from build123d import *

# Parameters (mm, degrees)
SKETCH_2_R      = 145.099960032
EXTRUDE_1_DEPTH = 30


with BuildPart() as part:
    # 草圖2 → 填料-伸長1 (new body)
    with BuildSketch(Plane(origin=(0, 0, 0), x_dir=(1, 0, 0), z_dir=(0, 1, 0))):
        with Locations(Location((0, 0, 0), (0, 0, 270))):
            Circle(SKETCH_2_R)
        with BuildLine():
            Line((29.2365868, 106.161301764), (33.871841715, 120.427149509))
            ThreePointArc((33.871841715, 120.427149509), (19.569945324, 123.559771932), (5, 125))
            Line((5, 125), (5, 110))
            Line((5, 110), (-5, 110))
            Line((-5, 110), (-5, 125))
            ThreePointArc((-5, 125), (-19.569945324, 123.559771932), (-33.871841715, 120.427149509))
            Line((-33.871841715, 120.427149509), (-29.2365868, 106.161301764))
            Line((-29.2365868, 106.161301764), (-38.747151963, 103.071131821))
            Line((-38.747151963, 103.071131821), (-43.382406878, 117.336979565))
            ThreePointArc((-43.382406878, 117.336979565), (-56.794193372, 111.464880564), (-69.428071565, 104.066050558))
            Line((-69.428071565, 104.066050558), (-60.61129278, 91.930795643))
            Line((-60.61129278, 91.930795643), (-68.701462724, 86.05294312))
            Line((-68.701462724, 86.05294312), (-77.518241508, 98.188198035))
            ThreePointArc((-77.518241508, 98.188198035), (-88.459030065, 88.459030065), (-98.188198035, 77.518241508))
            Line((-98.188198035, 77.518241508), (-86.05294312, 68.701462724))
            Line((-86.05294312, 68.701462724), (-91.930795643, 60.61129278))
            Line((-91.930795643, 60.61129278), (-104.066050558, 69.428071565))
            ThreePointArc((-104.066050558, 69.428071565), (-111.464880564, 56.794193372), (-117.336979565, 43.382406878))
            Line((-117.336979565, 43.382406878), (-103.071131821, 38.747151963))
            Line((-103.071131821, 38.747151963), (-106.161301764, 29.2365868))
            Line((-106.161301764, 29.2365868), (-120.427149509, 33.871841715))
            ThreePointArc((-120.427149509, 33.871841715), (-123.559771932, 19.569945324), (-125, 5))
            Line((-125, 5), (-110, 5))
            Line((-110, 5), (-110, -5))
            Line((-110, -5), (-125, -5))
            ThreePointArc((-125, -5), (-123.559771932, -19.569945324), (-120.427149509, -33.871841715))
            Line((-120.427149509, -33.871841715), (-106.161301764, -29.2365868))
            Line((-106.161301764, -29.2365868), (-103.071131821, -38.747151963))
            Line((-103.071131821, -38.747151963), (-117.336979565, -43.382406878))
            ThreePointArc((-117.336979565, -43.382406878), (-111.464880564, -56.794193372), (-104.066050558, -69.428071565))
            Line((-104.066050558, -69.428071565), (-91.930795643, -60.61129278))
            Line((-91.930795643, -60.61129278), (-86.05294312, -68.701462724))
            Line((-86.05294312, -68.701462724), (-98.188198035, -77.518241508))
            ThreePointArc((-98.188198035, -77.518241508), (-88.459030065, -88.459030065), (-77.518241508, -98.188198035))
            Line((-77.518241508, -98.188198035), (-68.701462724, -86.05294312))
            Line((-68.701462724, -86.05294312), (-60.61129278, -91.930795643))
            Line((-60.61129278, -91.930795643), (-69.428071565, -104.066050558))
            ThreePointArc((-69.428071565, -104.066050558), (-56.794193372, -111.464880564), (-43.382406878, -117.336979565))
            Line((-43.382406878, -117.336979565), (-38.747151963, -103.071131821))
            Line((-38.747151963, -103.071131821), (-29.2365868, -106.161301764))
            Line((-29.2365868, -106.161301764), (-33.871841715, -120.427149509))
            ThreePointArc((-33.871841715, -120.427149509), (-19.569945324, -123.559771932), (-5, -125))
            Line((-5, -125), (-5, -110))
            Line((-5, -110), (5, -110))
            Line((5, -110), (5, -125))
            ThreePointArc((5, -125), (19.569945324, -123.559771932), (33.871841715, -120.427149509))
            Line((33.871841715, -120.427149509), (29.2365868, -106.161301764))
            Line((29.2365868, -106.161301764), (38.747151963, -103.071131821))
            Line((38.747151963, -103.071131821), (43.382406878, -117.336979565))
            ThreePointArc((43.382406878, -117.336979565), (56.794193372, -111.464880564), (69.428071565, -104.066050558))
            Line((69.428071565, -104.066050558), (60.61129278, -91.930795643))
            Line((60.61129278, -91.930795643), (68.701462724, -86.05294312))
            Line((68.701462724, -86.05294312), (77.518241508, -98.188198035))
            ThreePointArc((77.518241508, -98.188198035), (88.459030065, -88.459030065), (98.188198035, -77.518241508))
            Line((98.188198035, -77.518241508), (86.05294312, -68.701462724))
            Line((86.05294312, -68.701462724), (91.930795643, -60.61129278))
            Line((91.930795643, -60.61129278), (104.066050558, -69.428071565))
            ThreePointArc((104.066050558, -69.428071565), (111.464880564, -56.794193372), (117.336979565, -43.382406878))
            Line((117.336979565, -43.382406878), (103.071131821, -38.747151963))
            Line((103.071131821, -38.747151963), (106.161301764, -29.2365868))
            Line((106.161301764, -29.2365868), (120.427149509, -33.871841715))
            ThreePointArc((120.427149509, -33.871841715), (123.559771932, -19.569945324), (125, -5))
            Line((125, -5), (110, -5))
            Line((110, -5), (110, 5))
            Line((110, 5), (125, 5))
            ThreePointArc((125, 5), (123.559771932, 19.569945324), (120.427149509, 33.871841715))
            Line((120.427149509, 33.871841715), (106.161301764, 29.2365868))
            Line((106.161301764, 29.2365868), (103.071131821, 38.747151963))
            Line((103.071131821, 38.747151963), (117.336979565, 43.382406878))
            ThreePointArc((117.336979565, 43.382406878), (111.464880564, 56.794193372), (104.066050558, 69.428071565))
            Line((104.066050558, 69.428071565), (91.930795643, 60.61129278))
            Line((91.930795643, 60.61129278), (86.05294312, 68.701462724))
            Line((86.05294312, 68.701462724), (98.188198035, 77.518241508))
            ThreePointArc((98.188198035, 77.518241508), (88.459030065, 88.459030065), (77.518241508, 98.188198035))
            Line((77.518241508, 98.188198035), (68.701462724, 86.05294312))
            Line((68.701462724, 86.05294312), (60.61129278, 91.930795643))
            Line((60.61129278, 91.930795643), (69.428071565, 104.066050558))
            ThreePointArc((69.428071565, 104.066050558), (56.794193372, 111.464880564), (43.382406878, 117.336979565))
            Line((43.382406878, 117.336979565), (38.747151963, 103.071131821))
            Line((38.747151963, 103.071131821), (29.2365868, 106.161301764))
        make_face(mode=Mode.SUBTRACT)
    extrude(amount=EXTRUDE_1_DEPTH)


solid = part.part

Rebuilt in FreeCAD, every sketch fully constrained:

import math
import FreeCAD as App
import Part
import Sketcher
from FreeCAD import Vector
Q = App.Units.Quantity

doc = App.newDocument("Part")
params = doc.addObject("Spreadsheet::Sheet", "Params")
for row, (alias, value) in enumerate([
    ("sketch1_width", "15 mm"),
    ("sketch1_width2", "10 mm"),
    ("sketch1_length", "15 mm"),
    ("sketch1_length2", "10 mm"),
    ("pad1_length", "30 mm"),
], start=1):
    params.set(f"A{row}", alias)
    params.set(f"B{row}", "=" + value)
    params.setAlias(f"B{row}", alias)

body = doc.addObject("PartDesign::Body", "Body")

sketch1 = body.newObject("Sketcher::SketchObject", "Sketch")
sketch1.AttachmentSupport = (doc.getObject("XZ_Plane"), [""])
sketch1.MapMode = "FlatFace"
sketch1.addGeometry([
    Part.Circle(Vector(0, 0, 0), Vector(0, 0, 1), 145),
    Part.LineSegment(Vector(34, -120, 0), Vector(29, -106, 0)),
    Part.LineSegment(Vector(29, -106, 0), Vector(39, -103, 0)),
    Part.LineSegment(Vector(39, -103, 0), Vector(43, -117, 0)),
    Part.ArcOfCircle(Part.Circle(Vector(0, 0, 0), Vector(0, 0, 1), 125), math.radians(-69.71), math.radians(-56.29)),
    Part.LineSegment(Vector(69, -104, 0), Vector(61, -92, 0)),
    Part.LineSegment(Vector(61, -92, 0), Vector(69, -86, 0)),
    Part.LineSegment(Vector(69, -86, 0), Vector(78, -98, 0)),
    Part.ArcOfCircle(Part.Circle(Vector(0, 0, 0), Vector(0, 0, 1), 125), math.radians(-51.71), math.radians(-38.29)),
    Part.LineSegment(Vector(98, -78, 0), Vector(86, -69, 0)),
    Part.LineSegment(Vector(86, -69, 0), Vector(92, -61, 0)),
    Part.LineSegment(Vector(92, -61, 0), Vector(104, -69, 0)),
    Part.ArcOfCircle(Part.Circle(Vector(0, 0, 0), Vector(0, 0, 1), 125), math.radians(-33.71), math.radians(-20.29)),
    Part.LineSegment(Vector(117, -43, 0), Vector(103, -39, 0)),
    Part.LineSegment(Vector(103, -39, 0), Vector(106, -29, 0)),
    Part.LineSegment(Vector(106, -29, 0), Vector(120, -34, 0)),
    Part.ArcOfCircle(Part.Circle(Vector(0, 0, 0), Vector(0, 0, 1), 125), math.radians(-15.71), math.radians(-2.29)),
    Part.LineSegment(Vector(125, -5, 0), Vector(110, -5, 0)),
    Part.LineSegment(Vector(110, -5, 0), Vector(110, 5, 0)),
    Part.LineSegment(Vector(110, 5, 0), Vector(125, 5, 0)),
    Part.ArcOfCircle(Part.Circle(Vector(0, 0, 0), Vector(0, 0, 1), 125), math.radians(2.29), math.radians(15.71)),
    Part.LineSegment(Vector(120, 34, 0), Vector(106, 29, 0)),
    Part.LineSegment(Vector(106, 29, 0), Vector(103, 39, 0)),
    Part.LineSegment(Vector(103, 39, 0), Vector(117, 43, 0)),
    Part.ArcOfCircle(Part.Circle(Vector(0, 0, 0), Vector(0, 0, 1), 125), math.radians(20.29), math.radians(33.71)),
    Part.LineSegment(Vector(104, 69, 0), Vector(92, 61, 0)),
    Part.LineSegment(Vector(92, 61, 0), Vector(86, 69, 0)),
    Part.LineSegment(Vector(86, 69, 0), Vector(98, 78, 0)),
    Part.ArcOfCircle(Part.Circle(Vector(0, 0, 0), Vector(0, 0, 1), 125), math.radians(38.29), math.radians(51.71)),
    Part.LineSegment(Vector(78, 98, 0), Vector(69, 86, 0)),
    Part.LineSegment(Vector(69, 86, 0), Vector(61, 92, 0)),
    Part.LineSegment(Vector(61, 92, 0), Vector(69, 104, 0)),
    Part.ArcOfCircle(Part.Circle(Vector(0, 0, 0), Vector(0, 0, 1), 125), math.radians(56.29), math.radians(69.71)),
    Part.LineSegment(Vector(43, 117, 0), Vector(39, 103, 0)),
    Part.LineSegment(Vector(39, 103, 0), Vector(29, 106, 0)),
    Part.LineSegment(Vector(29, 106, 0), Vector(34, 120, 0)),
    Part.ArcOfCircle(Part.Circle(Vector(0, 0, 0), Vector(0, 0, 1), 125), math.radians(74.29), math.radians(87.71)),
    Part.LineSegment(Vector(5, 125, 0), Vector(5, 110, 0)),
    Part.LineSegment(Vector(5, 110, 0), Vector(-5, 110, 0)),
    Part.LineSegment(Vector(-5, 110, 0), Vector(-5, 125, 0)),
    Part.ArcOfCircle(Part.Circle(Vector(0, 0, 0), Vector(0, 0, 1), 125), math.radians(92.29), math.radians(105.71)),
    Part.LineSegment(Vector(-34, 120, 0), Vector(-29, 106, 0)),
    Part.LineSegment(Vector(-29, 106, 0), Vector(-39, 103, 0)),
    Part.LineSegment(Vector(-39, 103, 0), Vector(-43, 117, 0)),
    Part.ArcOfCircle(Part.Circle(Vector(0, 0, 0), Vector(0, 0, 1), 125), math.radians(110.29), math.radians(123.71)),
    Part.LineSegment(Vector(-69, 104, 0), Vector(-61, 92, 0)),
    Part.LineSegment(Vector(-61, 92, 0), Vector(-69, 86, 0)),
    Part.LineSegment(Vector(-69, 86, 0), Vector(-78, 98, 0)),
    Part.ArcOfCircle(Part.Circle(Vector(0, 0, 0), Vector(0, 0, 1), 125), math.radians(128.29), math.radians(141.71)),
    Part.LineSegment(Vector(-98, 78, 0), Vector(-86, 69, 0)),
    Part.LineSegment(Vector(-86, 69, 0), Vector(-92, 61, 0)),
    Part.LineSegment(Vector(-92, 61, 0), Vector(-104, 69, 0)),
    Part.ArcOfCircle(Part.Circle(Vector(0, 0, 0), Vector(0, 0, 1), 125), math.radians(146.29), math.radians(159.71)),
    Part.LineSegment(Vector(-117, 43, 0), Vector(-103, 39, 0)),
    Part.LineSegment(Vector(-103, 39, 0), Vector(-106, 29, 0)),
    Part.LineSegment(Vector(-106, 29, 0), Vector(-120, 34, 0)),
    Part.ArcOfCircle(Part.Circle(Vector(0, 0, 0), Vector(0, 0, 1), 125), math.radians(164.29), math.radians(177.71)),
    Part.LineSegment(Vector(-125, 5, 0), Vector(-110, 5, 0)),
    Part.LineSegment(Vector(-110, 5, 0), Vector(-110, -5, 0)),
    Part.LineSegment(Vector(-110, -5, 0), Vector(-125, -5, 0)),
    Part.ArcOfCircle(Part.Circle(Vector(0, 0, 0), Vector(0, 0, 1), 125), math.radians(-177.71), math.radians(-164.29)),
    Part.LineSegment(Vector(-120, -34, 0), Vector(-106, -29, 0)),
    Part.LineSegment(Vector(-106, -29, 0), Vector(-103, -39, 0)),
    Part.LineSegment(Vector(-103, -39, 0), Vector(-117, -43, 0)),
    Part.ArcOfCircle(Part.Circle(Vector(0, 0, 0), Vector(0, 0, 1), 125), math.radians(-159.71), math.radians(-146.29)),
    Part.LineSegment(Vector(-104, -69, 0), Vector(-92, -61, 0)),
    Part.LineSegment(Vector(-92, -61, 0), Vector(-86, -69, 0)),
    Part.LineSegment(Vector(-86, -69, 0), Vector(-98, -78, 0)),
    Part.ArcOfCircle(Part.Circle(Vector(0, 0, 0), Vector(0, 0, 1), 125), math.radians(-141.71), math.radians(-128.29)),
    Part.LineSegment(Vector(-78, -98, 0), Vector(-69, -86, 0)),
    Part.LineSegment(Vector(-69, -86, 0), Vector(-61, -92, 0)),
    Part.LineSegment(Vector(-61, -92, 0), Vector(-69, -104, 0)),
    Part.ArcOfCircle(Part.Circle(Vector(0, 0, 0), Vector(0, 0, 1), 125), math.radians(-123.71), math.radians(-110.29)),
    Part.LineSegment(Vector(-43, -117, 0), Vector(-39, -103, 0)),
    Part.LineSegment(Vector(-39, -103, 0), Vector(-29, -106, 0)),
    Part.LineSegment(Vector(-29, -106, 0), Vector(-34, -120, 0)),
    Part.ArcOfCircle(Part.Circle(Vector(0, 0, 0), Vector(0, 0, 1), 125), math.radians(-105.71), math.radians(-92.29)),
    Part.LineSegment(Vector(-5, -125, 0), Vector(-5, -110, 0)),
    Part.LineSegment(Vector(-5, -110, 0), Vector(5, -110, 0)),
    Part.LineSegment(Vector(5, -110, 0), Vector(5, -125, 0)),
    Part.ArcOfCircle(Part.Circle(Vector(0, 0, 0), Vector(0, 0, 1), 125), math.radians(-87.71), math.radians(-74.29)),
], False)
sketch1.addConstraint([
    Sketcher.Constraint("Coincident", 1, 2, 2, 1),
    Sketcher.Constraint("Coincident", 2, 2, 3, 1),
    Sketcher.Constraint("Coincident", 3, 2, 4, 1),
    Sketcher.Constraint("Coincident", 4, 2, 5, 1),
    Sketcher.Constraint("Coincident", 5, 2, 6, 1),
    Sketcher.Constraint("Coincident", 6, 2, 7, 1),
    Sketcher.Constraint("Coincident", 7, 2, 8, 1),
    Sketcher.Constraint("Coincident", 8, 2, 9, 1),
    Sketcher.Constraint("Coincident", 9, 2, 10, 1),
    Sketcher.Constraint("Coincident", 10, 2, 11, 1),
    Sketcher.Constraint("Coincident", 11, 2, 12, 1),
    Sketcher.Constraint("Coincident", 12, 2, 13, 1),
    Sketcher.Constraint("Coincident", 13, 2, 14, 1),
    Sketcher.Constraint("Coincident", 14, 2, 15, 1),
    Sketcher.Constraint("Coincident", 15, 2, 16, 1),
    Sketcher.Constraint("Coincident", 16, 2, 17, 1),
    Sketcher.Constraint("Coincident", 17, 2, 18, 1),
    Sketcher.Constraint("Coincident", 18, 2, 19, 1),
    Sketcher.Constraint("Coincident", 19, 2, 20, 1),
    Sketcher.Constraint("Coincident", 20, 2, 21, 1),
    Sketcher.Constraint("Coincident", 21, 2, 22, 1),
    Sketcher.Constraint("Coincident", 22, 2, 23, 1),
    Sketcher.Constraint("Coincident", 23, 2, 24, 1),
    Sketcher.Constraint("Coincident", 24, 2, 25, 1),
    Sketcher.Constraint("Coincident", 25, 2, 26, 1),
    Sketcher.Constraint("Coincident", 26, 2, 27, 1),
    Sketcher.Constraint("Coincident", 27, 2, 28, 1),
    Sketcher.Constraint("Coincident", 28, 2, 29, 1),
    Sketcher.Constraint("Coincident", 29, 2, 30, 1),
    Sketcher.Constraint("Coincident", 30, 2, 31, 1),
    Sketcher.Constraint("Coincident", 31, 2, 32, 1),
    Sketcher.Constraint("Coincident", 32, 2, 33, 1),
    Sketcher.Constraint("Coincident", 33, 2, 34, 1),
    Sketcher.Constraint("Coincident", 34, 2, 35, 1),
    Sketcher.Constraint("Coincident", 35, 2, 36, 1),
    Sketcher.Constraint("Coincident", 36, 2, 37, 1),
    Sketcher.Constraint("Coincident", 37, 2, 38, 1),
    Sketcher.Constraint("Coincident", 38, 2, 39, 1),
    Sketcher.Constraint("Coincident", 39, 2, 40, 1),
    Sketcher.Constraint("Coincident", 40, 2, 41, 1),
    Sketcher.Constraint("Coincident", 41, 2, 42, 1),
    Sketcher.Constraint("Coincident", 42, 2, 43, 1),
    Sketcher.Constraint("Coincident", 43, 2, 44, 1),
    Sketcher.Constraint("Coincident", 44, 2, 45, 1),
    Sketcher.Constraint("Coincident", 45, 2, 46, 1),
    Sketcher.Constraint("Coincident", 46, 2, 47, 1),
    Sketcher.Constraint("Coincident", 47, 2, 48, 1),
    Sketcher.Constraint("Coincident", 48, 2, 49, 1),
    Sketcher.Constraint("Coincident", 49, 2, 50, 1),
    Sketcher.Constraint("Coincident", 50, 2, 51, 1),
    Sketcher.Constraint("Coincident", 51, 2, 52, 1),
    Sketcher.Constraint("Coincident", 52, 2, 53, 1),
    Sketcher.Constraint("Coincident", 53, 2, 54, 1),
    Sketcher.Constraint("Coincident", 54, 2, 55, 1),
    Sketcher.Constraint("Coincident", 55, 2, 56, 1),
    Sketcher.Constraint("Coincident", 56, 2, 57, 1),
    Sketcher.Constraint("Coincident", 57, 2, 58, 1),
    Sketcher.Constraint("Coincident", 58, 2, 59, 1),
    Sketcher.Constraint("Coincident", 59, 2, 60, 1),
    Sketcher.Constraint("Coincident", 60, 2, 61, 1),
    Sketcher.Constraint("Coincident", 61, 2, 62, 1),
    Sketcher.Constraint("Coincident", 62, 2, 63, 1),
    Sketcher.Constraint("Coincident", 63, 2, 64, 1),
    Sketcher.Constraint("Coincident", 64, 2, 65, 1),
    Sketcher.Constraint("Coincident", 65, 2, 66, 1),
    Sketcher.Constraint("Coincident", 66, 2, 67, 1),
    Sketcher.Constraint("Coincident", 67, 2, 68, 1),
    Sketcher.Constraint("Coincident", 68, 2, 69, 1),
    Sketcher.Constraint("Coincident", 69, 2, 70, 1),
    Sketcher.Constraint("Coincident", 70, 2, 71, 1),
    Sketcher.Constraint("Coincident", 71, 2, 72, 1),
    Sketcher.Constraint("Coincident", 72, 2, 73, 1),
    Sketcher.Constraint("Coincident", 73, 2, 74, 1),
    Sketcher.Constraint("Coincident", 74, 2, 75, 1),
    Sketcher.Constraint("Coincident", 75, 2, 76, 1),
    Sketcher.Constraint("Coincident", 76, 2, 77, 1),
    Sketcher.Constraint("Coincident", 77, 2, 78, 1),
    Sketcher.Constraint("Coincident", 78, 2, 79, 1),
    Sketcher.Constraint("Coincident", 79, 2, 80, 1),
    Sketcher.Constraint("Coincident", 80, 2, 1, 1),
    Sketcher.Constraint("Horizontal", 17),
    Sketcher.Constraint("Vertical", 18),
    Sketcher.Constraint("Horizontal", 19),
    Sketcher.Constraint("Vertical", 37),
    Sketcher.Constraint("Horizontal", 38),
    Sketcher.Constraint("Vertical", 39),
    Sketcher.Constraint("Horizontal", 57),
    Sketcher.Constraint("Vertical", 58),
    Sketcher.Constraint("Horizontal", 59),
    Sketcher.Constraint("Vertical", 77),
    Sketcher.Constraint("Horizontal", 78),
    Sketcher.Constraint("Vertical", 79),
    Sketcher.Constraint("Coincident", 0, 3, -1, 1),
    Sketcher.Constraint("Coincident", 4, 3, -1, 1),
    Sketcher.Constraint("Coincident", 8, 3, -1, 1),
    Sketcher.Constraint("Coincident", 12, 3, -1, 1),
    Sketcher.Constraint("Coincident", 16, 3, -1, 1),
    Sketcher.Constraint("Coincident", 20, 3, -1, 1),
    Sketcher.Constraint("Coincident", 24, 3, -1, 1),
    Sketcher.Constraint("Coincident", 28, 3, -1, 1),
    Sketcher.Constraint("Coincident", 32, 3, -1, 1),
    Sketcher.Constraint("Coincident", 36, 3, -1, 1),
    Sketcher.Constraint("Coincident", 40, 3, -1, 1),
    Sketcher.Constraint("Coincident", 44, 3, -1, 1),
    Sketcher.Constraint("Coincident", 48, 3, -1, 1),
    Sketcher.Constraint("Coincident", 52, 3, -1, 1),
    Sketcher.Constraint("Coincident", 56, 3, -1, 1),
    Sketcher.Constraint("Coincident", 60, 3, -1, 1),
    Sketcher.Constraint("Coincident", 64, 3, -1, 1),
    Sketcher.Constraint("Coincident", 68, 3, -1, 1),
    Sketcher.Constraint("Coincident", 72, 3, -1, 1),
    Sketcher.Constraint("Coincident", 76, 3, -1, 1),
    Sketcher.Constraint("Coincident", 80, 3, -1, 1),
    Sketcher.Constraint("Equal", 4, 8),
    Sketcher.Constraint("Equal", 8, 12),
    Sketcher.Constraint("Equal", 12, 16),
    Sketcher.Constraint("Equal", 16, 20),
    Sketcher.Constraint("Equal", 20, 24),
    Sketcher.Constraint("Equal", 24, 28),
    Sketcher.Constraint("Equal", 28, 32),
    Sketcher.Constraint("Equal", 32, 36),
    Sketcher.Constraint("Equal", 36, 40),
    Sketcher.Constraint("Equal", 40, 44),
    Sketcher.Constraint("Equal", 44, 48),
    Sketcher.Constraint("Equal", 48, 52),
    Sketcher.Constraint("Equal", 52, 56),
    Sketcher.Constraint("Equal", 56, 60),
    Sketcher.Constraint("Equal", 60, 64),
    Sketcher.Constraint("Equal", 64, 68),
    Sketcher.Constraint("Equal", 68, 72),
    Sketcher.Constraint("Equal", 72, 76),
    Sketcher.Constraint("Equal", 76, 80),
    Sketcher.Constraint("Symmetric", 1, 2, 41, 2, -1, 1),
    Sketcher.Constraint("Symmetric", 2, 2, 42, 2, -1, 1),
    Sketcher.Constraint("Symmetric", 5, 2, 45, 2, -1, 1),
    Sketcher.Constraint("Symmetric", 6, 2, 46, 2, -1, 1),
    Sketcher.Constraint("Symmetric", 9, 2, 49, 2, -1, 1),
    Sketcher.Constraint("Symmetric", 10, 2, 50, 2, -1, 1),
    Sketcher.Constraint("Symmetric", 13, 2, 53, 2, -1, 1),
    Sketcher.Constraint("Symmetric", 14, 2, 54, 2, -1, 1),
    Sketcher.Constraint("Symmetric", 17, 2, 57, 2, -1, 1),
    Sketcher.Constraint("Symmetric", 21, 2, 61, 2, -1, 1),
    Sketcher.Constraint("Symmetric", 22, 2, 62, 2, -1, 1),
    Sketcher.Constraint("Symmetric", 25, 2, 65, 2, -1, 1),
    Sketcher.Constraint("Symmetric", 26, 2, 66, 2, -1, 1),
    Sketcher.Constraint("Symmetric", 29, 2, 69, 2, -1, 1),
    Sketcher.Constraint("Symmetric", 30, 2, 70, 2, -1, 1),
    Sketcher.Constraint("Symmetric", 33, 2, 73, 2, -1, 1),
    Sketcher.Constraint("Symmetric", 34, 2, 74, 2, -1, 1),
    Sketcher.Constraint("Symmetric", 37, 2, 77, 2, -1, 1),
    Sketcher.Constraint("Symmetric", 34, 2, 41, 2, -2),
    Sketcher.Constraint("Symmetric", 33, 2, 42, 2, -2),
    Sketcher.Constraint("Symmetric", 30, 2, 45, 2, -2),
    Sketcher.Constraint("Symmetric", 29, 2, 46, 2, -2),
    Sketcher.Constraint("Symmetric", 26, 2, 49, 2, -2),
    Sketcher.Constraint("Symmetric", 25, 2, 50, 2, -2),
    Sketcher.Constraint("Symmetric", 22, 2, 53, 2, -2),
    Sketcher.Constraint("Symmetric", 21, 2, 54, 2, -2),
    Sketcher.Constraint("Perpendicular", 1, 2),
    Sketcher.Constraint("Perpendicular", 2, 3),
    Sketcher.Constraint("Perpendicular", 5, 6),
    Sketcher.Constraint("Perpendicular", 6, 7),
    Sketcher.Constraint("Perpendicular", 9, 10),
    Sketcher.Constraint("Perpendicular", 10, 11),
    Sketcher.Constraint("Perpendicular", 13, 14),
    Sketcher.Constraint("Perpendicular", 14, 15),
    Sketcher.Constraint("Perpendicular", 3, 21),
    Sketcher.Constraint("Perpendicular", 21, 22),
    Sketcher.Constraint("Perpendicular", 22, 23),
    Sketcher.Constraint("Perpendicular", 7, 25),
    Sketcher.Constraint("Perpendicular", 25, 26),
    Sketcher.Constraint("Perpendicular", 26, 27),
    Sketcher.Constraint("Perpendicular", 11, 29),
    Sketcher.Constraint("Perpendicular", 30, 31),
    Sketcher.Constraint("Perpendicular", 15, 33),
    Sketcher.Constraint("Perpendicular", 34, 35),
    Sketcher.Constraint("Perpendicular", 23, 41),
    Sketcher.Constraint("Perpendicular", 42, 43),
    Sketcher.Constraint("Perpendicular", 27, 45),
    Sketcher.Constraint("Perpendicular", 46, 47),
    Sketcher.Constraint("Perpendicular", 31, 49),
    Sketcher.Constraint("Perpendicular", 50, 51),
    Sketcher.Constraint("Perpendicular", 35, 53),
    Sketcher.Constraint("Perpendicular", 54, 55),
    Sketcher.Constraint("Perpendicular", 43, 61),
    Sketcher.Constraint("Perpendicular", 62, 63),
    Sketcher.Constraint("Perpendicular", 47, 65),
    Sketcher.Constraint("Perpendicular", 66, 67),
    Sketcher.Constraint("Perpendicular", 51, 69),
    Sketcher.Constraint("Perpendicular", 70, 71),
    Sketcher.Constraint("Perpendicular", 55, 73),
    Sketcher.Constraint("Perpendicular", 74, 75),
    Sketcher.Constraint("Horizontal", 36, 2, 39, 2),
    Sketcher.Constraint("Horizontal", 19, 2, 56, 2),
    Sketcher.Constraint("Horizontal", 17, 2, 58, 2),
    Sketcher.Constraint("Horizontal", 76, 2, 79, 2),
    Sketcher.Constraint("Equal", 78, 18),
    Sketcher.Constraint("Equal", 59, 37),
    Sketcher.Constraint("Equal", 1, 3),
    Sketcher.Constraint("Equal", 3, 5),
    Sketcher.Constraint("Equal", 2, 6),
    Sketcher.Constraint("Equal", 5, 7),
    Sketcher.Constraint("Equal", 7, 9),
    Sketcher.Constraint("Equal", 6, 10),
    Sketcher.Constraint("Equal", 9, 11),
    Sketcher.Constraint("Equal", 11, 13),
    Sketcher.Constraint("Equal", 10, 14),
    Sketcher.Constraint("Equal", 13, 15),
    Sketcher.Constraint("DistanceX", 17, 2, 17, 1, Q("15 mm")),
    Sketcher.Constraint("DistanceX", 38, 2, 38, 1, Q("10 mm")),
    Sketcher.Constraint("Angle", 1, Q("108 deg")),
    Sketcher.Constraint("Angle", 5, Q("126 deg")),
    Sketcher.Constraint("Distance", 1, Q("15 mm")),
    Sketcher.Constraint("Distance", 2, Q("10 mm")),
    Sketcher.Constraint("DistanceX", -1, 1, 16, 2, Q("125 mm")),
    Sketcher.Constraint("Diameter", 0, Q("290.19992 mm")),
])
sketch1.setExpression("Constraints[208]", "Params.sketch1_width")
sketch1.setExpression("Constraints[209]", "Params.sketch1_width2")
sketch1.setExpression("Constraints[212]", "Params.sketch1_length")
sketch1.setExpression("Constraints[213]", "Params.sketch1_length2")
pad1 = body.newObject("PartDesign::Pad", "Pad")
pad1.Profile = sketch1
pad1.setExpression("Length", "Params.pad1_length")
pad1.Reversed = True

doc.recompute()
